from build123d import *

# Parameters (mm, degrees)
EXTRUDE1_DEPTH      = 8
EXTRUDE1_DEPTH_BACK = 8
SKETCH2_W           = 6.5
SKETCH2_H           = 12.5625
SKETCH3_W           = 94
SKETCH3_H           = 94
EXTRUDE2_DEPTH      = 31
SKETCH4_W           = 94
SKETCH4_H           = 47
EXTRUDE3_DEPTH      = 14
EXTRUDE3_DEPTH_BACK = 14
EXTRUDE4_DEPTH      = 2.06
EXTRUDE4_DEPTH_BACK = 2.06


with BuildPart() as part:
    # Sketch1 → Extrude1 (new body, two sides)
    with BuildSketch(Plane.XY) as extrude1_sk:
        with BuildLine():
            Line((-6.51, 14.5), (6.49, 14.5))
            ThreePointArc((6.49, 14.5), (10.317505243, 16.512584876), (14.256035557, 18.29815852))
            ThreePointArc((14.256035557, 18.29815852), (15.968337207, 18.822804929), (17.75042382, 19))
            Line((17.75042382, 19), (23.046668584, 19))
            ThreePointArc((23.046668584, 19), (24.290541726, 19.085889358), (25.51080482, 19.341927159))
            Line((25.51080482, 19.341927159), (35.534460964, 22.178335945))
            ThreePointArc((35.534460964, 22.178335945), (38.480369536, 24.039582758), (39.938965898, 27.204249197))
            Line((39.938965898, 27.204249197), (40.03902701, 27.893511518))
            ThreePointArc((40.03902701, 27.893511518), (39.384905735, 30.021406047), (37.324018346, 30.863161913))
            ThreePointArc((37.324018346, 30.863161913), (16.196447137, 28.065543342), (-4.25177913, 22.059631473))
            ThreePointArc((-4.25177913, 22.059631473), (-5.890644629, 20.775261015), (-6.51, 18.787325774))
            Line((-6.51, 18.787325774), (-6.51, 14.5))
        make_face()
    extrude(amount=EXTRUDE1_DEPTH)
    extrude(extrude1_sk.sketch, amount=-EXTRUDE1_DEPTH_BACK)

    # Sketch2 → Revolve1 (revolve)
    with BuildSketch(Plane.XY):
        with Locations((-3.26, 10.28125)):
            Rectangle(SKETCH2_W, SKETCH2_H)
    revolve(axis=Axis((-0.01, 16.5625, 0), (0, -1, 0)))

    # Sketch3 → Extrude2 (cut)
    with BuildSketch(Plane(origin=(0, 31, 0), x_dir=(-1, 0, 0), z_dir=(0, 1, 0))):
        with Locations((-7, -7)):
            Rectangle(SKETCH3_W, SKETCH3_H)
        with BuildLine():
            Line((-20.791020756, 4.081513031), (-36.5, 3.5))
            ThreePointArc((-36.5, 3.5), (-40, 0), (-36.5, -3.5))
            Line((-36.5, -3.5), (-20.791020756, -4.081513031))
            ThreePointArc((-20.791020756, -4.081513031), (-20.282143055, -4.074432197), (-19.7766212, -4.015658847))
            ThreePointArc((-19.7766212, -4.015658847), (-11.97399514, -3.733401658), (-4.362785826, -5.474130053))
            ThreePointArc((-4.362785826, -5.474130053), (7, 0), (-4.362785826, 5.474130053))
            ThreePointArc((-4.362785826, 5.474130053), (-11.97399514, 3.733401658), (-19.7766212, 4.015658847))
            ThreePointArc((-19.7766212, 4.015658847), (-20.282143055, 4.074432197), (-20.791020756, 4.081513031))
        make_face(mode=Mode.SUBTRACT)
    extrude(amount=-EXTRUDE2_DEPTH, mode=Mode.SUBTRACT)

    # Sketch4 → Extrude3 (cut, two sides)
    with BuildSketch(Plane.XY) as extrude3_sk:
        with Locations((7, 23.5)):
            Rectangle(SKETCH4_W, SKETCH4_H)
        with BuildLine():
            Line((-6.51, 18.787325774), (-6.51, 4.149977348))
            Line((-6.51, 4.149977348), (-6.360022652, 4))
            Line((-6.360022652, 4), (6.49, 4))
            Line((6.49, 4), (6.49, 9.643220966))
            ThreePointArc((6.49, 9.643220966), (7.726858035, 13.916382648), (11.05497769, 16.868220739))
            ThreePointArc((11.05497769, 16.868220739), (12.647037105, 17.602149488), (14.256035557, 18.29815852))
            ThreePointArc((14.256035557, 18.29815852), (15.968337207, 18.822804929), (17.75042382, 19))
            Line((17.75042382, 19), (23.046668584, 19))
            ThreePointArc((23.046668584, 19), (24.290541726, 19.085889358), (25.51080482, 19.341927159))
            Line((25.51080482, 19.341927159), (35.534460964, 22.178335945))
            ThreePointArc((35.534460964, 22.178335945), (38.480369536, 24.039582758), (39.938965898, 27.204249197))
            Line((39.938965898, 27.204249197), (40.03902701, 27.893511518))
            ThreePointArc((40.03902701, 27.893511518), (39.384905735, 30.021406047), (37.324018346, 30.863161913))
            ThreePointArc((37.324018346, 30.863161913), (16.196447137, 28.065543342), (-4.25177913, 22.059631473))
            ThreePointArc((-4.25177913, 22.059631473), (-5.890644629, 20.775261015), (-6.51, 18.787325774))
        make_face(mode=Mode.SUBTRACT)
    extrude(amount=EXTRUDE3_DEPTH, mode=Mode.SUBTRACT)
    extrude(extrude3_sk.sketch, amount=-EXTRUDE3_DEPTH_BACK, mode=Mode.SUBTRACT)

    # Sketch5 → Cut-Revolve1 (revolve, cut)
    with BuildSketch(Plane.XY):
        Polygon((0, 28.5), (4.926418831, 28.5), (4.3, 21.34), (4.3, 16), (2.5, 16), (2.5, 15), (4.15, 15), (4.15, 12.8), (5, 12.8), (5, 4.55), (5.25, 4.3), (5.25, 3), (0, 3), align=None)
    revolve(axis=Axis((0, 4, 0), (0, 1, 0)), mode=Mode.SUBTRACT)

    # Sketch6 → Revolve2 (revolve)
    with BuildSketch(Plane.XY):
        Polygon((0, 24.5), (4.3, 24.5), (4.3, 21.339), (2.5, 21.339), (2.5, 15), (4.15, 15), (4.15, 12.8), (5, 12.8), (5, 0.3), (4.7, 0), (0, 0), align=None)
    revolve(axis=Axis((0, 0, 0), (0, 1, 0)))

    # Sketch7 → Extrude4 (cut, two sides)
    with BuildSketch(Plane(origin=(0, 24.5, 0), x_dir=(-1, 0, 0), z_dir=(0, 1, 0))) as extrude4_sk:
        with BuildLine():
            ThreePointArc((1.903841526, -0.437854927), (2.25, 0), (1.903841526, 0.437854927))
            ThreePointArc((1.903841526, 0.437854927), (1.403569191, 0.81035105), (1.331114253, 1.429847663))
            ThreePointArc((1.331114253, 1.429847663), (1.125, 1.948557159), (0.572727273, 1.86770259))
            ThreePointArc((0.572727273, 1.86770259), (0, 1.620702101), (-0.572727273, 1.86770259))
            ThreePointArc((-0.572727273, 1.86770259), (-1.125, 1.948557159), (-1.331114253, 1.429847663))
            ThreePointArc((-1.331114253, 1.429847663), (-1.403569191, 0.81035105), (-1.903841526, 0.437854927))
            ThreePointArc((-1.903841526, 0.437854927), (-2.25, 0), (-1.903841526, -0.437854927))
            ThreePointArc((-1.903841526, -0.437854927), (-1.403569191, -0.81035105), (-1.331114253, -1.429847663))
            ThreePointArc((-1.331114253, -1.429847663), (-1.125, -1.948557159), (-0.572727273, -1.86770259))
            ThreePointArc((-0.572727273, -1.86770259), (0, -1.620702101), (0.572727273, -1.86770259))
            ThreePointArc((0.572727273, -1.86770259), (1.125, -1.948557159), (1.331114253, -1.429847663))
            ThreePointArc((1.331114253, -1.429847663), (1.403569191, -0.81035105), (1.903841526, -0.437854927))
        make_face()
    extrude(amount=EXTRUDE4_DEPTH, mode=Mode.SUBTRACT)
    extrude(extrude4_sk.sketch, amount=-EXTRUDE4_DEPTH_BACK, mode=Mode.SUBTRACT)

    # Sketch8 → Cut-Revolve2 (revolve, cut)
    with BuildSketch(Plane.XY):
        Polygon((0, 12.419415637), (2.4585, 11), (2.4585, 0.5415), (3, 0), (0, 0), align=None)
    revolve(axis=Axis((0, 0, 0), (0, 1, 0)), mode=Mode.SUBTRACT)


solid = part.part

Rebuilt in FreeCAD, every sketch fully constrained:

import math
import FreeCAD as App
import Part
import Sketcher

V = App.Vector
Q = App.Units.Quantity


def add_polygon(sketch, points):
    """Adds a closed chain of lines whose ends are joined by coincident constraints."""
    first, n = sketch.GeometryCount, len(points)
    for a, b in zip(points, points[1:] + points[:1]):
        sketch.addGeometry(Part.LineSegment(App.Vector(*a, 0), App.Vector(*b, 0)), False)
    for i in range(n):
        sketch.addConstraint(Sketcher.Constraint("Coincident", first + i, 2, first + (i + 1) % n, 1))

doc = App.newDocument("Part")
body = doc.addObject("PartDesign::Body", "Body")

# Sketch on XY plane
sketch1 = body.newObject("Sketcher::SketchObject", "Sketch")
sketch1.AttachmentSupport = (doc.getObject("XY_Plane"), [""])
sketch1.MapMode = "FlatFace"
sketch1.addGeometry([
    Part.LineSegment(V(-6.5, 14.5, 0), V(6.5, 14.5, 0)),  # 0
    Part.ArcOfCircle(Part.Circle(V(42.8, -50, 0), V(0, 0, 1), 74), math.radians(112.71), math.radians(119.41)),  # 1
    Part.ArcOfCircle(Part.Circle(V(17.8, 10, 0), V(0, 0, 1), 9), math.radians(90), math.radians(113)),  # 2
    Part.LineSegment(V(17.8, 19, 0), V(23, 19, 0)),  # 3
    Part.ArcOfCircle(Part.Circle(V(23, 28.1, 0), V(0, 0, 1), 9.1), math.radians(-90), math.radians(-74.2)),  # 4
    Part.LineSegment(V(25.5, 19.3, 0), V(35.5, 22.2, 0)),  # 5
    Part.ArcOfCircle(Part.Circle(V(33.9, 28.1, 0), V(0, 0, 1), 6.1), math.radians(-74), math.radians(-8)),  # 6
    Part.LineSegment(V(39.9, 27.2, 0), V(40, 27.9, 0)),  # 7
    Part.ArcOfCircle(Part.Circle(V(37.5, 28.3, 0), V(0, 0, 1), 2.6), math.radians(-8), math.radians(93)),  # 8
    Part.ArcOfCircle(Part.Circle(V(44.9, -107.4, 0), V(0, 0, 1), 138.5), math.radians(93.13), math.radians(110.78)),  # 9
    Part.ArcOfCircle(Part.Circle(V(-3, 18.8, 0), V(0, 0, 1), 3.5), math.radians(111), math.radians(180)),  # 10
    Part.LineSegment(V(-6.5, 18.8, 0), V(-6.5, 14.5, 0)),  # 11
], False)
sketch1.addConstraint([
    Sketcher.Constraint("Coincident", 0, 2, 1, 2),
    Sketcher.Constraint("Tangent", 1, 1, 2, 2),
    Sketcher.Constraint("Tangent", 2, 1, 3, 1),
    Sketcher.Constraint("Tangent", 3, 2, 4, 1),
    Sketcher.Constraint("Tangent", 4, 2, 5, 1),
    Sketcher.Constraint("Tangent", 5, 2, 6, 1),
    Sketcher.Constraint("Tangent", 6, 2, 7, 1),
    Sketcher.Constraint("Tangent", 7, 2, 8, 1),
    Sketcher.Constraint("Tangent", 8, 2, 9, 1),
    Sketcher.Constraint("Tangent", 9, 2, 10, 1),
    Sketcher.Constraint("Tangent", 10, 2, 11, 1),
    Sketcher.Constraint("Coincident", 11, 2, 0, 1),
    Sketcher.Constraint("Horizontal", 0),
    Sketcher.Constraint("Horizontal", 3),
    Sketcher.Constraint("Vertical", 11),
    Sketcher.Constraint("Equal", 2, 4),
    Sketcher.Constraint("Radius", 1, Q("74 mm")),
    Sketcher.Constraint("Radius", 8, Q("2.6 mm")),
    Sketcher.Constraint("Radius", 9, Q("138.5 mm")),
    Sketcher.Constraint("Radius", 10, Q("3.5 mm")),
    Sketcher.Constraint("DistanceX", 0, 1, 0, 2, Q("13 mm")),
    Sketcher.Constraint("Radius", 2, Q("9.05 mm")),
    Sketcher.Constraint("Radius", 6, Q("6.14 mm")),
    Sketcher.Constraint("DistanceY", -1, 1, 2, 1, Q("19 mm")),
    Sketcher.Constraint("Angle", 5, Q("15.8 deg")),
    Sketcher.Constraint("DistanceY", -1, 1, 0, 2, Q("14.5 mm")),
    Sketcher.Constraint("Angle", 7, Q("81.74 deg")),
    Sketcher.Constraint("DistanceX", 10, 3, -1, 1, Q("3.01 mm")),
    Sketcher.Constraint("DistanceX", -1, 1, 8, 3, Q("37.465999 mm")),
    Sketcher.Constraint("Distance", 5, Q("10.41724 mm")),
    Sketcher.Constraint("DistanceX", 3, 1, 3, 2, Q("5.296245 mm")),
    Sketcher.Constraint("DistanceY", 11, 2, 11, 1, Q("4.287326 mm")),
    Sketcher.Constraint("DistanceX", -1, 1, 4, 3, Q("23.046669 mm")),
])
pad1 = body.newObject("PartDesign::Pad", "Pad")
pad1.Profile = sketch1
pad1.Type = "TwoLengths"
pad1.Length = 8
pad1.Length2 = 8

# Sketch on XY plane
sketch2 = body.newObject("Sketcher::SketchObject", "Sketch001")
sketch2.AttachmentSupport = (doc.getObject("XY_Plane"), [""])
sketch2.MapMode = "FlatFace"
add_polygon(sketch2, [(-7, 17), (-7, 4), (0, 4), (0, 17)])  # lines 0-3
sketch2.addGeometry(Part.LineSegment(V(0, 17, 0), V(0, 4, 0)), True)  # axis
sketch2.addConstraint([
    Sketcher.Constraint("Vertical", 0),
    Sketcher.Constraint("Horizontal", 1),
    Sketcher.Constraint("Vertical", 2),
    Sketcher.Constraint("Horizontal", 3),
    Sketcher.Constraint("Vertical", 4),
    Sketcher.Constraint("Coincident", 4, 1, 2, 2),
    Sketcher.Constraint("Horizontal", 0, 2, 4, 2),
    Sketcher.Constraint("DistanceX", 1, 1, 1, 2, Q("6.5 mm")),
    Sketcher.Constraint("DistanceY", -1, 1, 0, 2, Q("4 mm")),
    Sketcher.Constraint("DistanceX", 0, 2, -1, 1, Q("6.51 mm")),
    Sketcher.Constraint("DistanceY", 0, 2, 0, 1, Q("12.5625 mm")),
])
revolution = body.newObject("PartDesign::Revolution", "Revolution")
revolution.Profile = sketch2
revolution.ReferenceAxis = (sketch2, ["Axis0"])
revolution.Angle = 360

# Sketch on XZ plane
sketch3 = body.newObject("Sketcher::SketchObject", "Sketch002")
sketch3.AttachmentSupport = (doc.getObject("XZ_Plane"), [""])
sketch3.MapMode = "FlatFace"
sketch3.AttachmentOffset = App.Placement(V(0, 0, -31), App.Rotation())
add_polygon(sketch3, [(54, 40), (54, -54), (-40, -54), (-40, 40)])  # lines 0-3
sketch3.addGeometry(Part.LineSegment(V(36.5, 3.5, 0), V(20.8, 4.1, 0)), False)  # 4
sketch3.addGeometry(Part.ArcOfCircle(Part.Circle(V(20.6, -0.9, 0), V(0, 0, 1), 5), math.radians(87.88), math.radians(99.55)), False)  # 5
sketch3.addGeometry(Part.ArcOfCircle(Part.Circle(V(14.8, 33.6, 0), V(0, 0, 1), 30), math.radians(-110), math.radians(-80)), False)  # 6
sketch3.addGeometry(Part.ArcOfCircle(Part.Circle(V(0, 0, 0), V(0, 0, 1), 7), math.radians(51), math.radians(309)), False)  # 7
sketch3.addGeometry(Part.ArcOfCircle(Part.Circle(V(14.8, -33.6, 0), V(0, 0, 1), 30), math.radians(80), math.radians(110)), False)  # 8
sketch3.addGeometry(Part.ArcOfCircle(Part.Circle(V(20.6, 0.9, 0), V(0, 0, 1), 5), math.radians(-99.55), math.radians(-87.88)), False)  # 9
sketch3.addGeometry(Part.LineSegment(V(20.8, -4.1, 0), V(36.5, -3.5, 0)), False)  # 10
sketch3.addGeometry(Part.ArcOfCircle(Part.Circle(V(36.5, 0, 0), V(0, 0, 1), 3.5), math.radians(-90), math.radians(90)), False)  # 11
sketch3.addConstraint([
    Sketcher.Constraint("Tangent", 4, 2, 5, 1),
    Sketcher.Constraint("Tangent", 5, 2, 6, 2),
    Sketcher.Constraint("Coincident", 6, 1, 7, 1),
    Sketcher.Constraint("Coincident", 7, 2, 8, 2),
    Sketcher.Constraint("Tangent", 8, 1, 9, 1),
    Sketcher.Constraint("Tangent", 9, 2, 10, 1),
    Sketcher.Constraint("Coincident", 10, 2, 11, 1),
    Sketcher.Constraint("Coincident", 11, 2, 4, 1),
    Sketcher.Constraint("Vertical", 0),
    Sketcher.Constraint("Horizontal", 1),
    Sketcher.Constraint("Vertical", 2),
    Sketcher.Constraint("Horizontal", 3),
    Sketcher.Constraint("Coincident", 7, 3, -1, 1),
    Sketcher.Constraint("Equal", 6, 8),
    Sketcher.Constraint("Equal", 5, 9),
    Sketcher.Constraint("Symmetric", 6, 3, 8, 3, -1),
    Sketcher.Constraint("Symmetric", 4, 2, 9, 2, -1),
    Sketcher.Constraint("PointOnObject", 11, 3, -1),
    Sketcher.Constraint("Vertical", 11, 3, 10, 2),
    Sketcher.Constraint("Equal", 3, 0),
    Sketcher.Constraint("Radius", 5, Q("5 mm")),
    Sketcher.Constraint("Radius", 6, Q("30 mm")),
    Sketcher.Constraint("Radius", 7, Q("7 mm")),
    Sketcher.Constraint("Radius", 11, Q("3.5 mm")),
    Sketcher.Constraint("DistanceX", 1, 2, 1, 1, Q("94 mm")),
    Sketcher.Constraint("DistanceX", -1, 1, 0, 2, Q("54 mm")),
    Sketcher.Constraint("DistanceY", 0, 2, -1, 1, Q("54 mm")),
    Sketcher.Constraint("DistanceX", -1, 1, 6, 3, Q("14.8 mm")),
    Sketcher.Constraint("DistanceY", -1, 1, 6, 3, Q("33.6 mm")),
    Sketcher.Constraint("DistanceX", -1, 1, 11, 3, Q("36.5 mm")),
    Sketcher.Constraint("Angle", 4, Q("177.88 deg")),
])
pocket1 = body.newObject("PartDesign::Pocket", "Pocket")
pocket1.Profile = sketch3
pocket1.Length = 31
pocket1.Reversed = True

# Sketch on XY plane
sketch4 = body.newObject("Sketcher::SketchObject", "Sketch003")
sketch4.AttachmentSupport = (doc.getObject("XY_Plane"), [""])
sketch4.MapMode = "FlatFace"
add_polygon(sketch4, [(-40, 47), (-40, 0), (54, 0), (54, 47)])  # lines 0-3
sketch4.addGeometry(Part.LineSegment(V(-6.51, 4.15, 0), V(-6.51, 18.79, 0)), False)  # 4
sketch4.addGeometry(Part.ArcOfCircle(Part.Circle(V(-3.01, 18.79, 0), V(0, 0, 1), 3.5), math.radians(111), math.radians(180)), False)  # 5
sketch4.addGeometry(Part.ArcOfCircle(Part.Circle(V(44.89, -107.43, 0), V(0, 0, 1), 138.5), math.radians(93.13), math.radians(110.78)), False)  # 6
sketch4.addGeometry(Part.ArcOfCircle(Part.Circle(V(37.47, 28.27, 0), V(0, 0, 1), 2.6), math.radians(-8), math.radians(93)), False)  # 7
sketch4.addGeometry(Part.LineSegment(V(40.04, 27.89, 0), V(39.94, 27.2, 0)), False)  # 8
sketch4.addGeometry(Part.ArcOfCircle(Part.Circle(V(33.86, 28.09, 0), V(0, 0, 1), 6.14), math.radians(-74), math.radians(-8)), False)  # 9
sketch4.addGeometry(Part.LineSegment(V(35.53, 22.18, 0), V(25.51, 19.34, 0)), False)  # 10
sketch4.addGeometry(Part.ArcOfCircle(Part.Circle(V(23.05, 28.05, 0), V(0, 0, 1), 9.05), math.radians(-90), math.radians(-74.2)), False)  # 11
sketch4.addGeometry(Part.LineSegment(V(23.05, 19, 0), V(17.75, 19, 0)), False)  # 12
sketch4.addGeometry(Part.ArcOfCircle(Part.Circle(V(17.75, 9.95, 0), V(0, 0, 1), 9.05), math.radians(90), math.radians(113)), False)  # 13
sketch4.addGeometry(Part.ArcOfCircle(Part.Circle(V(42.83, -49.96, 0), V(0, 0, 1), 74), math.radians(112.71), math.radians(115.43)), False)  # 14
sketch4.addGeometry(Part.ArcOfCircle(Part.Circle(V(14.49, 9.64, 0), V(0, 0, 1), 8), math.radians(115), math.radians(180)), False)  # 15
sketch4.addGeometry(Part.LineSegment(V(6.49, 9.64, 0), V(6.49, 4, 0)), False)  # 16
sketch4.addGeometry(Part.LineSegment(V(6.49, 4, 0), V(-6.36, 4, 0)), False)  # 17
sketch4.addGeometry(Part.LineSegment(V(-6.36, 4, 0), V(-6.51, 4.15, 0)), False)  # 18
sketch4.addConstraint([
    Sketcher.Constraint("Tangent", 4, 2, 5, 2),
    Sketcher.Constraint("Tangent", 5, 1, 6, 2),
    Sketcher.Constraint("Tangent", 6, 1, 7, 2),
    Sketcher.Constraint("Tangent", 7, 1, 8, 1),
    Sketcher.Constraint("Tangent", 8, 2, 9, 2),
    Sketcher.Constraint("Tangent", 9, 1, 10, 1),
    Sketcher.Constraint("Tangent", 10, 2, 11, 2),
    Sketcher.Constraint("Tangent", 11, 1, 12, 1),
    Sketcher.Constraint("Tangent", 12, 2, 13, 1),
    Sketcher.Constraint("Tangent", 13, 2, 14, 1),
    Sketcher.Constraint("Tangent", 14, 2, 15, 1),
    Sketcher.Constraint("Tangent", 15, 2, 16, 1),
    Sketcher.Constraint("Coincident", 16, 2, 17, 1),
    Sketcher.Constraint("Coincident", 17, 2, 18, 1),
    Sketcher.Constraint("Coincident", 18, 2, 4, 1),
    Sketcher.Constraint("Vertical", 0),
    Sketcher.Constraint("Horizontal", 1),
    Sketcher.Constraint("Vertical", 2),
    Sketcher.Constraint("Horizontal", 3),
    Sketcher.Constraint("Vertical", 4),
    Sketcher.Constraint("Horizontal", 12),
    Sketcher.Constraint("Vertical", 16),
    Sketcher.Constraint("Horizontal", 17),
    Sketcher.Constraint("Equal", 11, 13),
    Sketcher.Constraint("PointOnObject", 0, 2, -1),
    Sketcher.Constraint("Radius", 14, Q("73.999999 mm")),
    Sketcher.Constraint("Radius", 15, Q("8 mm")),
    Sketcher.Constraint("Radius", 5, Q("3.5 mm")),
    Sketcher.Constraint("Radius", 6, Q("138.5 mm")),
    Sketcher.Constraint("Radius", 7, Q("2.6 mm")),
    Sketcher.Constraint("DistanceX", 1, 1, 1, 2, Q("94 mm")),
    Sketcher.Constraint("DistanceY", 0, 2, 0, 1, Q("47 mm")),
    Sketcher.Constraint("Angle", 18, Q("135 deg")),
    Sketcher.Constraint("Radius", 9, Q("6.14 mm")),
    Sketcher.Constraint("Radius", 11, Q("9.05 mm")),
    Sketcher.Constraint("DistanceX", 0, 2, -1, 1, Q("40 mm")),
    Sketcher.Constraint("DistanceY", -1, 1, 11, 1, Q("19 mm")),
    Sketcher.Constraint("DistanceY", -1, 1, 16, 2, Q("4 mm")),
    Sketcher.Constraint("Angle", 10, Q("-164.2 deg")),
    Sketcher.Constraint("DistanceX", 4, 2, 15, 3, Q("21 mm")),
    Sketcher.Constraint("Angle", 8, Q("-98.26 deg")),
    Sketcher.Constraint("DistanceX", 5, 3, -1, 1, Q("3.01 mm")),
    Sketcher.Constraint("DistanceX", -1, 1, 7, 3, Q("37.465999 mm")),
    Sketcher.Constraint("Distance", 18, Q("0.2121 mm")),
    Sketcher.Constraint("DistanceY", 4, 1, 4, 2, Q("14.637348 mm")),
    Sketcher.Constraint("DistanceY", 16, 2, 16, 1, Q("5.643221 mm")),
    Sketcher.Constraint("Distance", 10, Q("10.41724 mm")),
    Sketcher.Constraint("DistanceX", 12, 2, 12, 1, Q("5.296245 mm")),
    Sketcher.Constraint("DistanceY", 6, 3, -1, 1, Q("107.43018 mm")),
])
pocket2 = body.newObject("PartDesign::Pocket", "Pocket001")
pocket2.Profile = sketch4
pocket2.Type = "ThroughAll"
pocket2.Midplane = True

# Sketch on XY plane
sketch5 = body.newObject("Sketcher::SketchObject", "Sketch004")
sketch5.AttachmentSupport = (doc.getObject("XY_Plane"), [""])
sketch5.MapMode = "FlatFace"
add_polygon(sketch5, [(4.93, 28.5), (0, 28.5), (0, 3), (5.25, 3), (5.25, 4.3), (5, 4.55), (5, 12.8), (4.15, 12.8), (4.15, 15), (2.5, 15), (2.5, 16), (4.3, 16), (4.3, 21.34)])  # lines 0-12
sketch5.addConstraint([
    Sketcher.Constraint("Horizontal", 0),
    Sketcher.Constraint("Vertical", 1),
    Sketcher.Constraint("Horizontal", 2),
    Sketcher.Constraint("Vertical", 3),
    Sketcher.Constraint("Vertical", 5),
    Sketcher.Constraint("Horizontal", 6),
    Sketcher.Constraint("Vertical", 7),
    Sketcher.Constraint("Horizontal", 8),
    Sketcher.Constraint("Vertical", 9),
    Sketcher.Constraint("Horizontal", 10),
    Sketcher.Constraint("Vertical", 11),
    Sketcher.Constraint("PointOnObject", 0, 2, -2),
    Sketcher.Constraint("DistanceY", 9, 1, 9, 2, Q("1 mm")),
    Sketcher.Constraint("Angle", 4, Q("135 deg")),
    Sketcher.Constraint("Angle", 12, Q("85 deg")),
    Sketcher.Constraint("DistanceX", 10, 1, 10, 2, Q("1.8 mm")),
    Sketcher.Constraint("DistanceY", 1, 2, 1, 1, Q("25.5 mm")),
    Sketcher.Constraint("DistanceY", 3, 1, 3, 2, Q("1.3 mm")),
    Sketcher.Constraint("DistanceY", 7, 1, 7, 2, Q("2.2 mm")),
    Sketcher.Constraint("DistanceY", -1, 1, 1, 2, Q("3 mm")),
    Sketcher.Constraint("DistanceX", -1, 1, 4, 2, Q("5 mm")),
    Sketcher.Constraint("DistanceY", -1, 1, 7, 2, Q("15 mm")),
    Sketcher.Constraint("DistanceX", 2, 1, 2, 2, Q("5.25 mm")),
    Sketcher.Constraint("DistanceX", 6, 2, 6, 1, Q("0.85 mm")),
    Sketcher.Constraint("DistanceX", 8, 2, 8, 1, Q("1.65 mm")),
    Sketcher.Constraint("DistanceY", 11, 1, 11, 2, Q("5.34 mm")),
])
groove = body.newObject("PartDesign::Groove", "Groove")
groove.Profile = sketch5
groove.ReferenceAxis = (sketch5, ["V_Axis"])
groove.Angle = 360

# Sketch on XY plane
sketch6 = body.newObject("Sketcher::SketchObject", "Sketch005")
sketch6.AttachmentSupport = (doc.getObject("XY_Plane"), [""])
sketch6.MapMode = "FlatFace"
add_polygon(sketch6, [(4.3, 24.5), (0, 24.5), (0, 0), (4.7, 0), (5, 0.3), (5, 12.8), (4.15, 12.8), (4.15, 15), (2.5, 15), (2.5, 21.34), (4.3, 21.34)])  # lines 0-10
sketch6.addConstraint([
    Sketcher.Constraint("Horizontal", 0),
    Sketcher.Constraint("Vertical", 1),
    Sketcher.Constraint("Horizontal", 2),
    Sketcher.Constraint("Vertical", 4),
    Sketcher.Constraint("Horizontal", 5),
    Sketcher.Constraint("Vertical", 6),
    Sketcher.Constraint("Horizontal", 7),
    Sketcher.Constraint("Vertical", 8),
    Sketcher.Constraint("Horizontal", 9),
    Sketcher.Constraint("Vertical", 10),
    Sketcher.Constraint("Coincident", 1, 2, -1, 1),
    Sketcher.Constraint("Angle", 3, Q("45 deg")),
    Sketcher.Constraint("DistanceX", 0, 2, 0, 1, Q("4.3 mm")),
    Sketcher.Constraint("DistanceX", 2, 1, 2, 2, Q("4.7 mm")),
    Sketcher.Constraint("DistanceX", 9, 1, 9, 2, Q("1.8 mm")),
    Sketcher.Constraint("DistanceY", 1, 2, 1, 1, Q("24.5 mm")),
    Sketcher.Constraint("DistanceY", 4, 1, 4, 2, Q("12.5 mm")),
    Sketcher.Constraint("DistanceY", 6, 1, 6, 2, Q("2.2 mm")),
    Sketcher.Constraint("DistanceX", -1, 1, 3, 2, Q("5 mm")),
    Sketcher.Constraint("DistanceX", 5, 2, 5, 1, Q("0.85 mm")),
    Sketcher.Constraint("DistanceY", 8, 1, 8, 2, Q("6.339 mm")),
])
revolution2 = body.newObject("PartDesign::Revolution", "Revolution001")
revolution2.Profile = sketch6
revolution2.ReferenceAxis = (sketch6, ["V_Axis"])
revolution2.Angle = 360

# Sketch on XZ plane
sketch7 = body.newObject("Sketcher::SketchObject", "Sketch006")
sketch7.AttachmentSupport = (doc.getObject("XZ_Plane"), [""])
sketch7.MapMode = "FlatFace"
sketch7.AttachmentOffset = App.Placement(V(0, 0, -24.5), App.Rotation())
sketch7.addGeometry([
    Part.ArcOfCircle(Part.Circle(V(-1.8, 0, 0), V(0, 0, 1), 0.45), math.radians(103), math.radians(257)),  # 0
    Part.ArcOfCircle(Part.Circle(V(-2.09, 1.2, 0), V(0, 0, 1), 0.79), math.radians(-77), math.radians(17)),  # 1
    Part.ArcOfCircle(Part.Circle(V(-0.9, 1.56, 0), V(0, 0, 1), 0.45), math.radians(43), math.radians(197)),  # 2
    Part.ArcOfCircle(Part.Circle(V(0, 2.41, 0), V(0, 0, 1), 0.79), math.radians(-137), math.radians(-43)),  # 3
    Part.ArcOfCircle(Part.Circle(V(0.9, 1.56, 0), V(0, 0, 1), 0.45), math.radians(-17), math.radians(137)),  # 4
    Part.ArcOfCircle(Part.Circle(V(2.09, 1.2, 0), V(0, 0, 1), 0.79), math.radians(163), math.radians(257)),  # 5
    Part.ArcOfCircle(Part.Circle(V(1.8, 0, 0), V(0, 0, 1), 0.45), math.radians(-77), math.radians(77)),  # 6
    Part.ArcOfCircle(Part.Circle(V(2.09, -1.2, 0), V(0, 0, 1), 0.79), math.radians(103), math.radians(197)),  # 7
    Part.ArcOfCircle(Part.Circle(V(0.9, -1.56, 0), V(0, 0, 1), 0.45), math.radians(-137), math.radians(17)),  # 8
    Part.ArcOfCircle(Part.Circle(V(0, -2.41, 0), V(0, 0, 1), 0.79), math.radians(43), math.radians(137)),  # 9
    Part.ArcOfCircle(Part.Circle(V(-0.9, -1.56, 0), V(0, 0, 1), 0.45), math.radians(163), math.radians(317)),  # 10
    Part.ArcOfCircle(Part.Circle(V(-2.09, -1.2, 0), V(0, 0, 1), 0.79), math.radians(-17), math.radians(77)),  # 11
], False)
sketch7.addConstraint([
    Sketcher.Constraint("Tangent", 0, 1, 1, 1),
    Sketcher.Constraint("Tangent", 1, 2, 2, 2),
    Sketcher.Constraint("Tangent", 2, 1, 3, 1),
    Sketcher.Constraint("Tangent", 3, 2, 4, 2),
    Sketcher.Constraint("Tangent", 4, 1, 5, 1),
    Sketcher.Constraint("Tangent", 5, 2, 6, 2),
    Sketcher.Constraint("Tangent", 6, 1, 7, 1),
    Sketcher.Constraint("Tangent", 7, 2, 8, 2),
    Sketcher.Constraint("Tangent", 8, 1, 9, 1),
    Sketcher.Constraint("Tangent", 9, 2, 10, 2),
    Sketcher.Constraint("Tangent", 10, 1, 11, 1),
    Sketcher.Constraint("Tangent", 11, 2, 0, 2),
    Sketcher.Constraint("Equal", 0, 2),
    Sketcher.Constraint("Equal", 1, 3),
    Sketcher.Constraint("Equal", 2, 4),
    Sketcher.Constraint("Equal", 3, 5),
    Sketcher.Constraint("Equal", 4, 6),
    Sketcher.Constraint("Equal", 5, 7),
    Sketcher.Constraint("Equal", 6, 8),
    Sketcher.Constraint("Equal", 7, 9),
    Sketcher.Constraint("Equal", 8, 10),
    Sketcher.Constraint("Equal", 9, 11),
    Sketcher.Constraint("Symmetric", 0, 3, 6, 3, -1, 1),
    Sketcher.Constraint("Symmetric", 2, 3, 8, 3, -1, 1),
    Sketcher.Constraint("Symmetric", 4, 3, 10, 3, -1, 1),
    Sketcher.Constraint("Symmetric", 2, 3, 4, 3, -2),
    Sketcher.Constraint("PointOnObject", 0, 3, -1),
    Sketcher.Constraint("Radius", 0, Q("0.45 mm")),
    Sketcher.Constraint("DistanceX", 0, 3, -1, 1, Q("1.8 mm")),
    Sketcher.Constraint("DistanceX", 2, 3, -1, 1, Q("0.9 mm")),
    Sketcher.Constraint("Radius", 1, Q("0.7875 mm")),
    Sketcher.Constraint("DistanceY", 1, 2, 2, 3, Q("0.128998 mm")),
])
pocket3 = body.newObject("PartDesign::Pocket", "Pocket002")
pocket3.Profile = sketch7
pocket3.Type = "TwoLengths"
pocket3.Length = 2.06
pocket3.Length2 = 2.06

# Sketch on XY plane
sketch8 = body.newObject("Sketcher::SketchObject", "Sketch007")
sketch8.AttachmentSupport = (doc.getObject("XY_Plane"), [""])
sketch8.MapMode = "FlatFace"
add_polygon(sketch8, [(2.5, 11), (0, 12.4), (0, 0), (3, 0), (2.5, 0.5)])  # lines 0-4
sketch8.addConstraint([
    Sketcher.Constraint("Vertical", 1),
    Sketcher.Constraint("Horizontal", 2),
    Sketcher.Constraint("Vertical", 4),
    Sketcher.Constraint("Coincident", 1, 2, -1, 1),
    Sketcher.Constraint("DistanceX", 2, 1, 2, 2, Q("3 mm")),
    Sketcher.Constraint("Angle", 0, Q("150 deg")),
    Sketcher.Constraint("Angle", 3, Q("135 deg")),
    Sketcher.Constraint("DistanceY", -1, 1, 4, 2, Q("11 mm")),
    Sketcher.Constraint("DistanceY", 4, 1, 4, 2, Q("10.4585 mm")),
])
groove2 = body.newObject("PartDesign::Groove", "Groove001")
groove2.Profile = sketch8
groove2.ReferenceAxis = (sketch8, ["V_Axis"])
groove2.Angle = 360

doc.recompute()
